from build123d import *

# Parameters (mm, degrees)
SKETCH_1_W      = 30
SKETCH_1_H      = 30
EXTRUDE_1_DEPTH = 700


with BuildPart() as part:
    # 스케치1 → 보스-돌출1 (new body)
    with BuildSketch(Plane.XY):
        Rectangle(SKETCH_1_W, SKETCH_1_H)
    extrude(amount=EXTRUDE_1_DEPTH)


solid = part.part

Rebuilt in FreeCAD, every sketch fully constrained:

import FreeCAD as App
import Part
import Sketcher
from FreeCAD import Vector

doc = App.newDocument("Part")
body = doc.addObject("PartDesign::Body", "Body")

sketch1 = body.newObject("Sketcher::SketchObject", "Sketch")
sketch1.AttachmentSupport = (doc.getObject("XY_Plane"), [""])
sketch1.MapMode = "FlatFace"
sketch1.addGeometry([
    Part.LineSegment(Vector(-15, 15, 0), Vector(-15, -15, 0)),
    Part.LineSegment(Vector(-15, -15, 0), Vector(15, -15, 0)),
    Part.LineSegment(Vector(15, -15, 0), Vector(15, 15, 0)),
    Part.LineSegment(Vector(15, 15, 0), Vector(-15, 15, 0)),
], False)
sketch1.addConstraint([
    Sketcher.Constraint("Coincident", 0, 2, 1, 1),
    Sketcher.Constraint("Coincident", 1, 2, 2, 1),
    Sketcher.Constraint("Coincident", 2, 2, 3, 1),
    Sketcher.Constraint("Coincident", 3, 2, 0, 1),
    Sketcher.Constraint("Vertical", 0),
    Sketcher.Constraint("Horizontal", 1),
    Sketcher.Constraint("Vertical", 2),
    Sketcher.Constraint("Horizontal", 3),
    Sketcher.Constraint("Symmetric", 0, 2, 2, 2, -1, 1),
    Sketcher.Constraint("Equal", 3, 0),
    Sketcher.Constraint("DistanceX", 1, 1, 1, 2, 30.0),
])
pad1 = body.newObject("PartDesign::Pad", "Pad")
pad1.Profile = sketch1
pad1.Length = 700

doc.recompute()
